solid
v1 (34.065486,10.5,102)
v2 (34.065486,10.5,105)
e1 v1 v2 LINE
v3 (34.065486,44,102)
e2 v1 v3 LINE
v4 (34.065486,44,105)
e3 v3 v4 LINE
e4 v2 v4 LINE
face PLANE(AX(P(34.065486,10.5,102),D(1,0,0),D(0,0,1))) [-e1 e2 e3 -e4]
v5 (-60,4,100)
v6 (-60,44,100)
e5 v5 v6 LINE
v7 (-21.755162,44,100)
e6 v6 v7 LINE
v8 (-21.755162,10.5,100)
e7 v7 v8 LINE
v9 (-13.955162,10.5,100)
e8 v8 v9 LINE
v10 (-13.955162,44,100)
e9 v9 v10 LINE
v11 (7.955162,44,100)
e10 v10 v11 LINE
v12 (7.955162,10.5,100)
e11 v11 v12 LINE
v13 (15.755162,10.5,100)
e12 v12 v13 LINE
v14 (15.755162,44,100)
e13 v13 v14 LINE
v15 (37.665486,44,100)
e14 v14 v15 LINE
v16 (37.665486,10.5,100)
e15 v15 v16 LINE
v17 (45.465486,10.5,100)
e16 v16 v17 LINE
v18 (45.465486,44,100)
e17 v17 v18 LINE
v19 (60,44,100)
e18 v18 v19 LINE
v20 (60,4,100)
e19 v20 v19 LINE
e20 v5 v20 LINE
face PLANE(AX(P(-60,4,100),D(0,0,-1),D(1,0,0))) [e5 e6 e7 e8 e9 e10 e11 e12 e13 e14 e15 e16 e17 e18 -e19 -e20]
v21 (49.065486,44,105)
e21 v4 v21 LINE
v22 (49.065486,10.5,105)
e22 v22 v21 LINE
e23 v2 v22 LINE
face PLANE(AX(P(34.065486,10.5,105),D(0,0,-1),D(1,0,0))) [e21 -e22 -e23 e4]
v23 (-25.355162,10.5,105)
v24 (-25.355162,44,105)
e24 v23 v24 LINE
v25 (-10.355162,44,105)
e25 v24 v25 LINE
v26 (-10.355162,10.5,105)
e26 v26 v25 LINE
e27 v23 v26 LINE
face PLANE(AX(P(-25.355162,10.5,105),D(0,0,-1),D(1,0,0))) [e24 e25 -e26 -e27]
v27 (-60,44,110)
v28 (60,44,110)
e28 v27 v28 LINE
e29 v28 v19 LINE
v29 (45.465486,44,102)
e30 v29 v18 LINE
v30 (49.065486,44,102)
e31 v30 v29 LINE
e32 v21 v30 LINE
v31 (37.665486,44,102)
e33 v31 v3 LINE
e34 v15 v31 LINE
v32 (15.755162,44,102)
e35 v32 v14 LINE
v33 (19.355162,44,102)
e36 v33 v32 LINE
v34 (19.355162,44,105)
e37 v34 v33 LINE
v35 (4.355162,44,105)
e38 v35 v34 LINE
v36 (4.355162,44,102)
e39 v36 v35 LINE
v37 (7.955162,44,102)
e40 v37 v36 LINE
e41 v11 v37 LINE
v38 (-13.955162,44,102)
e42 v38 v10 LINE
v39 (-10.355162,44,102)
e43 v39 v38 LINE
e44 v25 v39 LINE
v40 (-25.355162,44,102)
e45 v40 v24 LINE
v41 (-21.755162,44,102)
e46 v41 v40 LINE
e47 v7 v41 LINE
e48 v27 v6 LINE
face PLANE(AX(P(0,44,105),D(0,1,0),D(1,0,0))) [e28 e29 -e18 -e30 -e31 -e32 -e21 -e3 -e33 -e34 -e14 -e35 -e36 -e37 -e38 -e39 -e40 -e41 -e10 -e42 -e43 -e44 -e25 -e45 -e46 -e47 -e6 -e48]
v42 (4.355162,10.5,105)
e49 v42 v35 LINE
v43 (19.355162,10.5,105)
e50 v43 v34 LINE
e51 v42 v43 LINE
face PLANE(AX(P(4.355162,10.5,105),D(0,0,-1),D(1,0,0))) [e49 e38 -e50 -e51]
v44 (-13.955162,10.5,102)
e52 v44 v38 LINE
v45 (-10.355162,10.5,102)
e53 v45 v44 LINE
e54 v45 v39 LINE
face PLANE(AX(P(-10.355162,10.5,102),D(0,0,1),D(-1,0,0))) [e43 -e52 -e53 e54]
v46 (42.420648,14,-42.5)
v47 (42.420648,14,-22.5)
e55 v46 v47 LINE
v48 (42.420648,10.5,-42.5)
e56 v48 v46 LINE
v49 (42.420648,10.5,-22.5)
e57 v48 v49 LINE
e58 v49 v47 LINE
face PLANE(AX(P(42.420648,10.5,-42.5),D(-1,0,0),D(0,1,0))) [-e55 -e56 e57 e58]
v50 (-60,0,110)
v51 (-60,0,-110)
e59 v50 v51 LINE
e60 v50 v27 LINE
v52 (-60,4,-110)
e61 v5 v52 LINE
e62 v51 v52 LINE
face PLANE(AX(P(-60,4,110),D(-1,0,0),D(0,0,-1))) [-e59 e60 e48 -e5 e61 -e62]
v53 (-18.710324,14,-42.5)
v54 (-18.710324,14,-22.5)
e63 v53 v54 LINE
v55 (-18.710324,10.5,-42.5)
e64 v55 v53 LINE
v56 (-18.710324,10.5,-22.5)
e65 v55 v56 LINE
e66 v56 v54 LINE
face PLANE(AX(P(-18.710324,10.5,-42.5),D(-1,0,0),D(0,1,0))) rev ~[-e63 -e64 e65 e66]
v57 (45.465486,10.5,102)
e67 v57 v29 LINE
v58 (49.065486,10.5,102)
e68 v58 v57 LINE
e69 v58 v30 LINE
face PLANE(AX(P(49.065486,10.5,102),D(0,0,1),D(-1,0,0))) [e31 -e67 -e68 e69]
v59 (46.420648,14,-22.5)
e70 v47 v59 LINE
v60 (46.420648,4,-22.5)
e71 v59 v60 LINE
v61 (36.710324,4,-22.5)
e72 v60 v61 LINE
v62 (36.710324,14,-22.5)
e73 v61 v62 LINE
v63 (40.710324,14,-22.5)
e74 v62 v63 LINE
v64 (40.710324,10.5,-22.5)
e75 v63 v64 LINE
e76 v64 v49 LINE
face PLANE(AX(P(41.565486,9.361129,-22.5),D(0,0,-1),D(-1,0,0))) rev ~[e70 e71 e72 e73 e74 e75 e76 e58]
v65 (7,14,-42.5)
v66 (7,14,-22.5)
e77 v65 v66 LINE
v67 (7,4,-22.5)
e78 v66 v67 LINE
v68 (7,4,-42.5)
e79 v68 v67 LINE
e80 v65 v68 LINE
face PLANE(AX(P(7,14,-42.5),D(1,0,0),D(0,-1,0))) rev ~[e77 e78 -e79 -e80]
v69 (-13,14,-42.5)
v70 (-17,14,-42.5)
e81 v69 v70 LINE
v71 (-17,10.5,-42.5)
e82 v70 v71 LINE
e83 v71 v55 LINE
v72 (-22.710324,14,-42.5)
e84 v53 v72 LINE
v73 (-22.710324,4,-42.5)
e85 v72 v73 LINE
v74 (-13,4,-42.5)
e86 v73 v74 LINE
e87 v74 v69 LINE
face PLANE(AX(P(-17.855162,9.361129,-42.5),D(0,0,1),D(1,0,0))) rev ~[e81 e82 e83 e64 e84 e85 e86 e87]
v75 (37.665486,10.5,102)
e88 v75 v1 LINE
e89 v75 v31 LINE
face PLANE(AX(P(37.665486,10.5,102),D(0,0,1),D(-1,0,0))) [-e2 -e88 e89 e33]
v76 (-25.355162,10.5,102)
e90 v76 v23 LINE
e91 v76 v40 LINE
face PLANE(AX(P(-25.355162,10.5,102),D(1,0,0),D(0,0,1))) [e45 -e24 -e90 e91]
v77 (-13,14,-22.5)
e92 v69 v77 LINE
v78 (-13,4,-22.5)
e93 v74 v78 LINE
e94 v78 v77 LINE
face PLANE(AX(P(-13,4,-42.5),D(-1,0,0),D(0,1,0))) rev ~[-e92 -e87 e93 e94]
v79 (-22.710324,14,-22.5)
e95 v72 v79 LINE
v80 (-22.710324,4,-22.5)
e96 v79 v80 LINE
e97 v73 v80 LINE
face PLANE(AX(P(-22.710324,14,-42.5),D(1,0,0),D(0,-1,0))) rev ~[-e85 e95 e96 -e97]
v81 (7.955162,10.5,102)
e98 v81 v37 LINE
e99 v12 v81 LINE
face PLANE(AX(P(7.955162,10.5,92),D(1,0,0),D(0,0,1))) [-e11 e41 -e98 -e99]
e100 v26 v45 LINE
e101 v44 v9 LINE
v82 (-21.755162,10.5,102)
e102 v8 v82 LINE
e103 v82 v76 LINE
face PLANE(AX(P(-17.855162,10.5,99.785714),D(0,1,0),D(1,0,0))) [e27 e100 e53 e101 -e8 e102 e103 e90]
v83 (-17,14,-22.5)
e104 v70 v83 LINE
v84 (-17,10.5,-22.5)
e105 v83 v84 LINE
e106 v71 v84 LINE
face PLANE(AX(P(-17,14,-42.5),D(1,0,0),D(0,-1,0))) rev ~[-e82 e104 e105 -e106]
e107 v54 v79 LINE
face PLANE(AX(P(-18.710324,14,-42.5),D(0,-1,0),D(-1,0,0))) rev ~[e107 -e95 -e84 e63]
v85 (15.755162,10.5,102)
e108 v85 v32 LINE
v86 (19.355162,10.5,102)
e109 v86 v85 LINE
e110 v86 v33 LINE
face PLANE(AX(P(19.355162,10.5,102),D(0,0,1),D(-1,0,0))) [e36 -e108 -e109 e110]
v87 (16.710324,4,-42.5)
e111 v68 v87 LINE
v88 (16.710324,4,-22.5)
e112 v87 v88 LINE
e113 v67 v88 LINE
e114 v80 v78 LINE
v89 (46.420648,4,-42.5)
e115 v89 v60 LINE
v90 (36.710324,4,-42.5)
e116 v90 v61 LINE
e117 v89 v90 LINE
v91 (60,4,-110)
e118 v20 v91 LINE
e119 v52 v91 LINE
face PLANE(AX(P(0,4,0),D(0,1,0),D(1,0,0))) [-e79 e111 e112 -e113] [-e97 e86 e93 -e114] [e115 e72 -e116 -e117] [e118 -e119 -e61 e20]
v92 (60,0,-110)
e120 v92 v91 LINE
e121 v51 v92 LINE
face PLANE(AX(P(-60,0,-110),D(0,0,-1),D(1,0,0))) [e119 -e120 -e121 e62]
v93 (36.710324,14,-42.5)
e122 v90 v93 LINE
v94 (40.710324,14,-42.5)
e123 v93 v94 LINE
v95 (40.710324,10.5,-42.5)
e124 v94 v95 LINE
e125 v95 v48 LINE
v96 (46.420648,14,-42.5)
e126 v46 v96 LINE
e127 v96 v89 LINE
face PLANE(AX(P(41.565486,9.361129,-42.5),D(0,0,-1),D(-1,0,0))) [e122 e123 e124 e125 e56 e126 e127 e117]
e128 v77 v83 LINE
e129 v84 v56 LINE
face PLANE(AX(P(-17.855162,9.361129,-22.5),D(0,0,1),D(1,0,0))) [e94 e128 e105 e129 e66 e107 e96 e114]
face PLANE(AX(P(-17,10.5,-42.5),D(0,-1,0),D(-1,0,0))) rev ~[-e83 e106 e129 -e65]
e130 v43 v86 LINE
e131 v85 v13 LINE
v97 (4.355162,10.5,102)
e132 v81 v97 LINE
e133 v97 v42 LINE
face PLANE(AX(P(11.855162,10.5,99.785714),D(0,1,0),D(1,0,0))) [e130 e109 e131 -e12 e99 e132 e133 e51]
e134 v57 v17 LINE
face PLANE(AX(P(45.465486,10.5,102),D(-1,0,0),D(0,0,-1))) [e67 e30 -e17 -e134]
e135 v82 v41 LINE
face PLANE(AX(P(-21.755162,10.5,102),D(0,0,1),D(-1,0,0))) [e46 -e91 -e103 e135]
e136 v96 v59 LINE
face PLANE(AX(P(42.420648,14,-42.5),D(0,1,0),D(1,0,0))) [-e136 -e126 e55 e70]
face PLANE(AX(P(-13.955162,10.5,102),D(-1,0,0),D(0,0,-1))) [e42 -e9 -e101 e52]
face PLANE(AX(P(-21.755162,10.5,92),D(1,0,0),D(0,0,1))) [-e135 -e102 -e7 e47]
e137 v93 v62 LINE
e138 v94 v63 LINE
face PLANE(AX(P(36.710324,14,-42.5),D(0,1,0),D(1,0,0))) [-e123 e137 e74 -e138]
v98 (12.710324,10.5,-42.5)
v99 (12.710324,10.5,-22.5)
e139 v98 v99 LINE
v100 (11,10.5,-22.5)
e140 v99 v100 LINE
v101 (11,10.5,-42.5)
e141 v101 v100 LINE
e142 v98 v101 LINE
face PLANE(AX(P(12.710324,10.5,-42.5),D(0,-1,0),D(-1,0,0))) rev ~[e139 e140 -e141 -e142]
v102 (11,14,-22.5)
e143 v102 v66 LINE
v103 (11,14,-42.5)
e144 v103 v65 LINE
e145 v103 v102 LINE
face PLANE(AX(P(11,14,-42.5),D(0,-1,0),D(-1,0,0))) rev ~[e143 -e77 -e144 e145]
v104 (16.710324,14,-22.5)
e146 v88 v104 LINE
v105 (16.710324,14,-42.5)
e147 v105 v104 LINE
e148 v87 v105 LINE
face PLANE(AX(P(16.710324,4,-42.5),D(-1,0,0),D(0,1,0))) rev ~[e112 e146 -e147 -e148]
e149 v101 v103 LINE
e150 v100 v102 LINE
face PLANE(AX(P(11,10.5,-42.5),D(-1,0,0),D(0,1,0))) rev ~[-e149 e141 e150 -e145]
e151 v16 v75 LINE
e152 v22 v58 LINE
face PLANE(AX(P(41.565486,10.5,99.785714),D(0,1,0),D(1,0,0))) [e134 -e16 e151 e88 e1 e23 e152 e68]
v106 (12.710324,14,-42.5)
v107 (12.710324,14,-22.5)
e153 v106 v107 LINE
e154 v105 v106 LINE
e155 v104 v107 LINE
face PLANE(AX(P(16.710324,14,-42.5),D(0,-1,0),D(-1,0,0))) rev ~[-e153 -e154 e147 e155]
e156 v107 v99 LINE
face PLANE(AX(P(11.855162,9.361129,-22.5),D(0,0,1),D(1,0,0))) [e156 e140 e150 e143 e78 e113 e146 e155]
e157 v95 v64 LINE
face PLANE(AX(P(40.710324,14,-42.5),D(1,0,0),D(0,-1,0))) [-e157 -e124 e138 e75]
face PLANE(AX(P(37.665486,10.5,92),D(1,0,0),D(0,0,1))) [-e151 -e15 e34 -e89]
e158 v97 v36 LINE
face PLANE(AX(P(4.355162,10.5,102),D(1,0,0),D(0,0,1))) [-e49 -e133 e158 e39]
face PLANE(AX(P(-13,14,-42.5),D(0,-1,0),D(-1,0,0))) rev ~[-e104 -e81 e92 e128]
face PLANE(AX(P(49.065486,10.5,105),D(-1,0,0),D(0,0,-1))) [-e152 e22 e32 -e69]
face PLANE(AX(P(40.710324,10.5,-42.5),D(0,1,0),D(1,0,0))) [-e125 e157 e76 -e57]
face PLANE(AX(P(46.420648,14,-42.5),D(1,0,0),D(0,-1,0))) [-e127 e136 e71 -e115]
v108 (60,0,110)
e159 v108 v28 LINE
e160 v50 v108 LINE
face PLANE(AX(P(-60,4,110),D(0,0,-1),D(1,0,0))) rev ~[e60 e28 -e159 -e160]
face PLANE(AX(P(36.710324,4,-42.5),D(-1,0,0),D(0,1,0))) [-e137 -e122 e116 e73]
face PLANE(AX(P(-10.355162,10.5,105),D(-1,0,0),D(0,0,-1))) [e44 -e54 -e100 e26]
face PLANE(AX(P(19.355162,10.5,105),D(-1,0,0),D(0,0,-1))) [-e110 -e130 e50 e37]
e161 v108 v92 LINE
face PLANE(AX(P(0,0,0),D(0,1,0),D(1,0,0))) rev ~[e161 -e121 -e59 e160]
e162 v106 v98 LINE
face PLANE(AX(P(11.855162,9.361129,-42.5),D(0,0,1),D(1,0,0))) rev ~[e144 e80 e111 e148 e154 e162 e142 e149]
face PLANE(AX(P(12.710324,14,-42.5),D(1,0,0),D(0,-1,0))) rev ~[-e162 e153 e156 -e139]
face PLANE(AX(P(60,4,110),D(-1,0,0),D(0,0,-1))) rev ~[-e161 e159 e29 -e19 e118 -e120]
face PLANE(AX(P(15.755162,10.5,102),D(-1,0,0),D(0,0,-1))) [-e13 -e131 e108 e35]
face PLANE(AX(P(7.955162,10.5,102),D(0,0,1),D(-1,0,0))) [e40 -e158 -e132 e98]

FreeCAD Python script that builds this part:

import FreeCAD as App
import Part
import Sketcher
from FreeCAD import Vector


def add_polygon(sketch, points):
    """Adds a closed chain of lines whose ends are joined by coincident constraints."""
    first, n = sketch.GeometryCount, len(points)
    for a, b in zip(points, points[1:] + points[:1]):
        sketch.addGeometry(Part.LineSegment(App.Vector(*a, 0), App.Vector(*b, 0)), False)
    for i in range(n):
        sketch.addConstraint(Sketcher.Constraint("Coincident", first + i, 2, first + (i + 1) % n, 1))

doc = App.newDocument("Part")
body = doc.addObject("PartDesign::Body", "Body")

# Sketch on XZ plane
sketch1 = doc.addObject("Sketcher::SketchObject", "Sketch")
body.addObject(sketch1)
sketch1.AttachmentSupport = (doc.XZ_Plane, [""])
sketch1.MapMode = "FlatFace"
add_polygon(sketch1, [(-60, -110), (-60, 110), (60, 110), (60, -110)])  # lines 0-3
sketch1.addConstraint(Sketcher.Constraint("Vertical", 0))
sketch1.addConstraint(Sketcher.Constraint("Horizontal", 1))
sketch1.addConstraint(Sketcher.Constraint("Vertical", 2))
sketch1.addConstraint(Sketcher.Constraint("Horizontal", 3))
sketch1.addConstraint(Sketcher.Constraint("Symmetric", 0, 2, 2, 2, -1, 1))
sketch1.addConstraint(Sketcher.Constraint("DistanceX", 1, 1, 1, 2, 120.0))
sketch1.addConstraint(Sketcher.Constraint("DistanceY", 0, 1, 0, 2, 220.0))
pad1 = doc.addObject("PartDesign::Pad", "Pad")
body.addObject(pad1)
pad1.Profile = sketch1
pad1.Length = 4
pad1.Reversed = True

# Sketch on XZ plane
sketch2 = doc.addObject("Sketcher::SketchObject", "Sketch001")
body.addObject(sketch2)
sketch2.AttachmentSupport = (doc.XZ_Plane, [""])
sketch2.MapMode = "FlatFace"
sketch2.AttachmentOffset = App.Placement(Vector(0, 0, -4), App.Rotation())
add_polygon(sketch2, [(-60, 100), (-60, 110), (60, 110), (60, 100)])  # lines 0-3
sketch2.addConstraint(Sketcher.Constraint("Vertical", 0))
sketch2.addConstraint(Sketcher.Constraint("Horizontal", 1))
sketch2.addConstraint(Sketcher.Constraint("Vertical", 2))
sketch2.addConstraint(Sketcher.Constraint("Horizontal", 3))
sketch2.addConstraint(Sketcher.Constraint("DistanceX", 1, 1, 1, 2, 120.0))
sketch2.addConstraint(Sketcher.Constraint("DistanceY", 0, 1, 0, 2, 10.0))
sketch2.addConstraint(Sketcher.Constraint("DistanceX", 0, 2, -1, 1, 60.0))
sketch2.addConstraint(Sketcher.Constraint("DistanceY", -1, 1, 0, 2, 110.0))
pad2 = doc.addObject("PartDesign::Pad", "Pad001")
body.addObject(pad2)
pad2.Profile = sketch2
pad2.Length = 40
pad2.Reversed = True

# Sketch on XZ plane
sketch3 = doc.addObject("Sketcher::SketchObject", "Sketch002")
body.addObject(sketch3)
sketch3.AttachmentSupport = (doc.XZ_Plane, [""])
sketch3.MapMode = "FlatFace"
sketch3.AttachmentOffset = App.Placement(Vector(0, 0, -10.5), App.Rotation())
add_polygon(sketch3, [(49.1, 105), (49.1, 102), (45.5, 102), (45.5, 92), (37.7, 92), (37.7, 102), (34.1, 102), (34.1, 105)])  # lines 0-7
add_polygon(sketch3, [(19.4, 105), (19.4, 102), (15.8, 102), (15.8, 92), (8, 92), (8, 102), (4.4, 102), (4.4, 105)])  # lines 8-15
add_polygon(sketch3, [(-10.4, 105), (-10.4, 102), (-14, 102), (-14, 92), (-21.8, 92), (-21.8, 102), (-25.4, 102), (-25.4, 105)])  # lines 16-23
sketch3.addConstraint(Sketcher.Constraint("Vertical", 0))
sketch3.addConstraint(Sketcher.Constraint("Horizontal", 1))
sketch3.addConstraint(Sketcher.Constraint("Vertical", 2))
sketch3.addConstraint(Sketcher.Constraint("Horizontal", 3))
sketch3.addConstraint(Sketcher.Constraint("Vertical", 4))
sketch3.addConstraint(Sketcher.Constraint("Horizontal", 5))
sketch3.addConstraint(Sketcher.Constraint("Vertical", 6))
sketch3.addConstraint(Sketcher.Constraint("Horizontal", 7))
sketch3.addConstraint(Sketcher.Constraint("Vertical", 8))
sketch3.addConstraint(Sketcher.Constraint("Horizontal", 9))
sketch3.addConstraint(Sketcher.Constraint("Vertical", 10))
sketch3.addConstraint(Sketcher.Constraint("Horizontal", 11))
sketch3.addConstraint(Sketcher.Constraint("Vertical", 12))
sketch3.addConstraint(Sketcher.Constraint("Horizontal", 13))
sketch3.addConstraint(Sketcher.Constraint("Vertical", 14))
sketch3.addConstraint(Sketcher.Constraint("Horizontal", 15))
sketch3.addConstraint(Sketcher.Constraint("Vertical", 16))
sketch3.addConstraint(Sketcher.Constraint("Horizontal", 17))
sketch3.addConstraint(Sketcher.Constraint("Vertical", 18))
sketch3.addConstraint(Sketcher.Constraint("Horizontal", 19))
sketch3.addConstraint(Sketcher.Constraint("Vertical", 20))
sketch3.addConstraint(Sketcher.Constraint("Horizontal", 21))
sketch3.addConstraint(Sketcher.Constraint("Vertical", 22))
sketch3.addConstraint(Sketcher.Constraint("Horizontal", 23))
sketch3.addConstraint(Sketcher.Constraint("Horizontal", 1, 2, 4, 2))
sketch3.addConstraint(Sketcher.Constraint("Horizontal", 5, 2, 8, 2))
sketch3.addConstraint(Sketcher.Constraint("Horizontal", 3, 2, 10, 2))
sketch3.addConstraint(Sketcher.Constraint("Horizontal", 9, 2, 12, 2))
sketch3.addConstraint(Sketcher.Constraint("Horizontal", 7, 2, 14, 2))
sketch3.addConstraint(Sketcher.Constraint("Horizontal", 13, 2, 16, 2))
sketch3.addConstraint(Sketcher.Constraint("Horizontal", 11, 2, 18, 2))
sketch3.addConstraint(Sketcher.Constraint("Horizontal", 17, 2, 20, 2))
sketch3.addConstraint(Sketcher.Constraint("Horizontal", 15, 2, 22, 2))
sketch3.addConstraint(Sketcher.Constraint("Equal", 1, 5))
sketch3.addConstraint(Sketcher.Constraint("Equal", 5, 9))
sketch3.addConstraint(Sketcher.Constraint("Equal", 3, 11))
sketch3.addConstraint(Sketcher.Constraint("Equal", 9, 13))
sketch3.addConstraint(Sketcher.Constraint("Equal", 13, 17))
sketch3.addConstraint(Sketcher.Constraint("Equal", 11, 19))
sketch3.addConstraint(Sketcher.Constraint("Equal", 17, 21))
sketch3.addConstraint(Sketcher.Constraint("DistanceX", 7, 1, 7, 2, 15.0))
sketch3.addConstraint(Sketcher.Constraint("DistanceY", 0, 2, 0, 1, 3.0))
sketch3.addConstraint(Sketcher.Constraint("DistanceY", 2, 2, 2, 1, 10.0))
sketch3.addConstraint(Sketcher.Constraint("DistanceX", 1, 2, 1, 1, 3.6))
sketch3.addConstraint(Sketcher.Constraint("DistanceY", -1, 1, 0, 2, 102.0))
sketch3.addConstraint(Sketcher.Constraint("DistanceX", -1, 1, 0, 2, 49.065486))
sketch3.addConstraint(Sketcher.Constraint("DistanceX", -1, 1, 8, 2, 19.355162))
sketch3.addConstraint(Sketcher.Constraint("DistanceX", 16, 2, -1, 1, 10.355162))
pocket1 = doc.addObject("PartDesign::Pocket", "Pocket")
body.addObject(pocket1)
pocket1.Profile = sketch3
pocket1.Length = 33.5

# Sketch on XY plane
sketch4 = doc.addObject("Sketcher::SketchObject", "Sketch003")
body.addObject(sketch4)
sketch4.AttachmentSupport = (doc.XY_Plane, [""])
sketch4.MapMode = "FlatFace"
sketch4.AttachmentOffset = App.Placement(Vector(0, 0, -42.5), App.Rotation())
add_polygon(sketch4, [(46.4, 4), (36.7, 4), (36.7, 14), (40.7, 14), (40.7, 10.5), (42.4, 10.5), (42.4, 14), (46.4, 14)])  # lines 0-7
add_polygon(sketch4, [(16.7, 14), (16.7, 4), (7, 4), (7, 14), (11, 14), (11, 10.5), (12.7, 10.5), (12.7, 14)])  # lines 8-15
add_polygon(sketch4, [(-13, 14), (-13, 4), (-22.7, 4), (-22.7, 14), (-18.7, 14), (-18.7, 10.5), (-17, 10.5), (-17, 14)])  # lines 16-23
sketch4.addConstraint(Sketcher.Constraint("Horizontal", 0))
sketch4.addConstraint(Sketcher.Constraint("Vertical", 1))
sketch4.addConstraint(Sketcher.Constraint("Horizontal", 2))
sketch4.addConstraint(Sketcher.Constraint("Vertical", 3))
sketch4.addConstraint(Sketcher.Constraint("Horizontal", 4))
sketch4.addConstraint(Sketcher.Constraint("Vertical", 5))
sketch4.addConstraint(Sketcher.Constraint("Horizontal", 6))
sketch4.addConstraint(Sketcher.Constraint("Vertical", 7))
sketch4.addConstraint(Sketcher.Constraint("Vertical", 8))
sketch4.addConstraint(Sketcher.Constraint("Horizontal", 9))
sketch4.addConstraint(Sketcher.Constraint("Vertical", 10))
sketch4.addConstraint(Sketcher.Constraint("Horizontal", 11))
sketch4.addConstraint(Sketcher.Constraint("Vertical", 12))
sketch4.addConstraint(Sketcher.Constraint("Horizontal", 13))
sketch4.addConstraint(Sketcher.Constraint("Vertical", 14))
sketch4.addConstraint(Sketcher.Constraint("Horizontal", 15))
sketch4.addConstraint(Sketcher.Constraint("Vertical", 16))
sketch4.addConstraint(Sketcher.Constraint("Horizontal", 17))
sketch4.addConstraint(Sketcher.Constraint("Vertical", 18))
sketch4.addConstraint(Sketcher.Constraint("Horizontal", 19))
sketch4.addConstraint(Sketcher.Constraint("Vertical", 20))
sketch4.addConstraint(Sketcher.Constraint("Horizontal", 21))
sketch4.addConstraint(Sketcher.Constraint("Vertical", 22))
sketch4.addConstraint(Sketcher.Constraint("Horizontal", 23))
sketch4.addConstraint(Sketcher.Constraint("Horizontal", 2, 2, 5, 2))
sketch4.addConstraint(Sketcher.Constraint("Horizontal", 7, 2, 8, 2))
sketch4.addConstraint(Sketcher.Constraint("Horizontal", 6, 2, 10, 2))
sketch4.addConstraint(Sketcher.Constraint("Horizontal", 4, 2, 12, 2))
sketch4.addConstraint(Sketcher.Constraint("Horizontal", 11, 2, 14, 2))
sketch4.addConstraint(Sketcher.Constraint("Horizontal", 9, 2, 16, 2))
sketch4.addConstraint(Sketcher.Constraint("Horizontal", 15, 2, 18, 2))
sketch4.addConstraint(Sketcher.Constraint("Horizontal", 13, 2, 20, 2))
sketch4.addConstraint(Sketcher.Constraint("Horizontal", 19, 2, 22, 2))
sketch4.addConstraint(Sketcher.Constraint("Equal", 2, 6))
sketch4.addConstraint(Sketcher.Constraint("Equal", 0, 9))
sketch4.addConstraint(Sketcher.Constraint("Equal", 6, 11))
sketch4.addConstraint(Sketcher.Constraint("Equal", 4, 13))
sketch4.addConstraint(Sketcher.Constraint("Equal", 9, 17))
sketch4.addConstraint(Sketcher.Constraint("Equal", 15, 19))
sketch4.addConstraint(Sketcher.Constraint("Equal", 13, 21))
sketch4.addConstraint(Sketcher.Constraint("DistanceX", 2, 1, 2, 2, 4.0))
sketch4.addConstraint(Sketcher.Constraint("DistanceY", 1, 1, 1, 2, 10.0))
sketch4.addConstraint(Sketcher.Constraint("DistanceY", 3, 2, 3, 1, 3.5))
sketch4.addConstraint(Sketcher.Constraint("DistanceY", -1, 1, 0, 2, 4.0))
sketch4.addConstraint(Sketcher.Constraint("DistanceX", -1, 1, 9, 2, 7.0))
sketch4.addConstraint(Sketcher.Constraint("DistanceX", 16, 2, -1, 1, 13.0))
sketch4.addConstraint(Sketcher.Constraint("DistanceX", 8, 2, 0, 2, 20.0))
sketch4.addConstraint(Sketcher.Constraint("DistanceX", 0, 2, 0, 1, 9.710324))
pad3 = doc.addObject("PartDesign::Pad", "Pad002")
body.addObject(pad3)
pad3.Profile = sketch4
pad3.Length = 20

doc.recompute()
